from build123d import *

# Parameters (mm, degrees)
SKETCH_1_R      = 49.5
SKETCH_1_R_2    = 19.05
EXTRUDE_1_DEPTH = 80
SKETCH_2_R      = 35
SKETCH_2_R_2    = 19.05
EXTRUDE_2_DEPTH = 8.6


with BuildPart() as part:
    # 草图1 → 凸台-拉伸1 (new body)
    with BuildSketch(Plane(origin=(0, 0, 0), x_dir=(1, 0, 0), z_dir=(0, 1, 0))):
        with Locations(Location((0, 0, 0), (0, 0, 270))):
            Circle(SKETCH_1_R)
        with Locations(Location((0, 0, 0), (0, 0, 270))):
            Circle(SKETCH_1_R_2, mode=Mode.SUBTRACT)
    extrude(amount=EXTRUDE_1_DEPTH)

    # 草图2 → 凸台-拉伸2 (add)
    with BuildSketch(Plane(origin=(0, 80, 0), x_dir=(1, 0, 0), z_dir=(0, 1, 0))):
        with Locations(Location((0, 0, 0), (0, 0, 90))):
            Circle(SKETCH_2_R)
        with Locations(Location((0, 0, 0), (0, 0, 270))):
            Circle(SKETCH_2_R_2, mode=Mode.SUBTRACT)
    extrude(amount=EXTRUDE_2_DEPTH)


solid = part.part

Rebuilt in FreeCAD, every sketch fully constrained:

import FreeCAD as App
import Part
import Sketcher

doc = App.newDocument("Part")
body = doc.addObject("PartDesign::Body", "Body")

# Sketch on XZ plane
sketch1 = body.newObject("Sketcher::SketchObject", "Sketch")
sketch1.AttachmentSupport = (doc.getObject("XZ_Plane"), [""])
sketch1.MapMode = "FlatFace"
sketch1.addGeometry(Part.Circle(App.Vector(0, 0, 0), App.Vector(0, 0, 1), 50), False)
sketch1.addGeometry(Part.Circle(App.Vector(0, 0, 0), App.Vector(0, 0, 1), 19), False)
sketch1.addConstraint(Sketcher.Constraint("Coincident", 0, 3, -1, 1))
sketch1.addConstraint(Sketcher.Constraint("Coincident", 1, 3, -1, 1))
sketch1.addConstraint(Sketcher.Constraint("Diameter", 0, 99.0))
sketch1.addConstraint(Sketcher.Constraint("Diameter", 1, 38.1))
pad1 = body.newObject("PartDesign::Pad", "Pad")
pad1.Profile = sketch1
pad1.Length = 80
pad1.Reversed = True

# Sketch on XZ plane
sketch2 = body.newObject("Sketcher::SketchObject", "Sketch001")
sketch2.AttachmentSupport = (doc.getObject("XZ_Plane"), [""])
sketch2.MapMode = "FlatFace"
sketch2.AttachmentOffset = App.Placement(App.Vector(0, 0, -80), App.Rotation())
sketch2.addGeometry(Part.Circle(App.Vector(0, 0, 0), App.Vector(0, 0, 1), 35), False)
sketch2.addGeometry(Part.Circle(App.Vector(0, 0, 0), App.Vector(0, 0, 1), 19), False)
sketch2.addConstraint(Sketcher.Constraint("Coincident", 0, 3, -1, 1))
sketch2.addConstraint(Sketcher.Constraint("Coincident", 1, 3, -1, 1))
sketch2.addConstraint(Sketcher.Constraint("Diameter", 0, 70.0))
sketch2.addConstraint(Sketcher.Constraint("Diameter", 1, 38.1))
pad2 = body.newObject("PartDesign::Pad", "Pad001")
pad2.Profile = sketch2
pad2.Length = 8.6
pad2.Reversed = True

doc.recompute()
